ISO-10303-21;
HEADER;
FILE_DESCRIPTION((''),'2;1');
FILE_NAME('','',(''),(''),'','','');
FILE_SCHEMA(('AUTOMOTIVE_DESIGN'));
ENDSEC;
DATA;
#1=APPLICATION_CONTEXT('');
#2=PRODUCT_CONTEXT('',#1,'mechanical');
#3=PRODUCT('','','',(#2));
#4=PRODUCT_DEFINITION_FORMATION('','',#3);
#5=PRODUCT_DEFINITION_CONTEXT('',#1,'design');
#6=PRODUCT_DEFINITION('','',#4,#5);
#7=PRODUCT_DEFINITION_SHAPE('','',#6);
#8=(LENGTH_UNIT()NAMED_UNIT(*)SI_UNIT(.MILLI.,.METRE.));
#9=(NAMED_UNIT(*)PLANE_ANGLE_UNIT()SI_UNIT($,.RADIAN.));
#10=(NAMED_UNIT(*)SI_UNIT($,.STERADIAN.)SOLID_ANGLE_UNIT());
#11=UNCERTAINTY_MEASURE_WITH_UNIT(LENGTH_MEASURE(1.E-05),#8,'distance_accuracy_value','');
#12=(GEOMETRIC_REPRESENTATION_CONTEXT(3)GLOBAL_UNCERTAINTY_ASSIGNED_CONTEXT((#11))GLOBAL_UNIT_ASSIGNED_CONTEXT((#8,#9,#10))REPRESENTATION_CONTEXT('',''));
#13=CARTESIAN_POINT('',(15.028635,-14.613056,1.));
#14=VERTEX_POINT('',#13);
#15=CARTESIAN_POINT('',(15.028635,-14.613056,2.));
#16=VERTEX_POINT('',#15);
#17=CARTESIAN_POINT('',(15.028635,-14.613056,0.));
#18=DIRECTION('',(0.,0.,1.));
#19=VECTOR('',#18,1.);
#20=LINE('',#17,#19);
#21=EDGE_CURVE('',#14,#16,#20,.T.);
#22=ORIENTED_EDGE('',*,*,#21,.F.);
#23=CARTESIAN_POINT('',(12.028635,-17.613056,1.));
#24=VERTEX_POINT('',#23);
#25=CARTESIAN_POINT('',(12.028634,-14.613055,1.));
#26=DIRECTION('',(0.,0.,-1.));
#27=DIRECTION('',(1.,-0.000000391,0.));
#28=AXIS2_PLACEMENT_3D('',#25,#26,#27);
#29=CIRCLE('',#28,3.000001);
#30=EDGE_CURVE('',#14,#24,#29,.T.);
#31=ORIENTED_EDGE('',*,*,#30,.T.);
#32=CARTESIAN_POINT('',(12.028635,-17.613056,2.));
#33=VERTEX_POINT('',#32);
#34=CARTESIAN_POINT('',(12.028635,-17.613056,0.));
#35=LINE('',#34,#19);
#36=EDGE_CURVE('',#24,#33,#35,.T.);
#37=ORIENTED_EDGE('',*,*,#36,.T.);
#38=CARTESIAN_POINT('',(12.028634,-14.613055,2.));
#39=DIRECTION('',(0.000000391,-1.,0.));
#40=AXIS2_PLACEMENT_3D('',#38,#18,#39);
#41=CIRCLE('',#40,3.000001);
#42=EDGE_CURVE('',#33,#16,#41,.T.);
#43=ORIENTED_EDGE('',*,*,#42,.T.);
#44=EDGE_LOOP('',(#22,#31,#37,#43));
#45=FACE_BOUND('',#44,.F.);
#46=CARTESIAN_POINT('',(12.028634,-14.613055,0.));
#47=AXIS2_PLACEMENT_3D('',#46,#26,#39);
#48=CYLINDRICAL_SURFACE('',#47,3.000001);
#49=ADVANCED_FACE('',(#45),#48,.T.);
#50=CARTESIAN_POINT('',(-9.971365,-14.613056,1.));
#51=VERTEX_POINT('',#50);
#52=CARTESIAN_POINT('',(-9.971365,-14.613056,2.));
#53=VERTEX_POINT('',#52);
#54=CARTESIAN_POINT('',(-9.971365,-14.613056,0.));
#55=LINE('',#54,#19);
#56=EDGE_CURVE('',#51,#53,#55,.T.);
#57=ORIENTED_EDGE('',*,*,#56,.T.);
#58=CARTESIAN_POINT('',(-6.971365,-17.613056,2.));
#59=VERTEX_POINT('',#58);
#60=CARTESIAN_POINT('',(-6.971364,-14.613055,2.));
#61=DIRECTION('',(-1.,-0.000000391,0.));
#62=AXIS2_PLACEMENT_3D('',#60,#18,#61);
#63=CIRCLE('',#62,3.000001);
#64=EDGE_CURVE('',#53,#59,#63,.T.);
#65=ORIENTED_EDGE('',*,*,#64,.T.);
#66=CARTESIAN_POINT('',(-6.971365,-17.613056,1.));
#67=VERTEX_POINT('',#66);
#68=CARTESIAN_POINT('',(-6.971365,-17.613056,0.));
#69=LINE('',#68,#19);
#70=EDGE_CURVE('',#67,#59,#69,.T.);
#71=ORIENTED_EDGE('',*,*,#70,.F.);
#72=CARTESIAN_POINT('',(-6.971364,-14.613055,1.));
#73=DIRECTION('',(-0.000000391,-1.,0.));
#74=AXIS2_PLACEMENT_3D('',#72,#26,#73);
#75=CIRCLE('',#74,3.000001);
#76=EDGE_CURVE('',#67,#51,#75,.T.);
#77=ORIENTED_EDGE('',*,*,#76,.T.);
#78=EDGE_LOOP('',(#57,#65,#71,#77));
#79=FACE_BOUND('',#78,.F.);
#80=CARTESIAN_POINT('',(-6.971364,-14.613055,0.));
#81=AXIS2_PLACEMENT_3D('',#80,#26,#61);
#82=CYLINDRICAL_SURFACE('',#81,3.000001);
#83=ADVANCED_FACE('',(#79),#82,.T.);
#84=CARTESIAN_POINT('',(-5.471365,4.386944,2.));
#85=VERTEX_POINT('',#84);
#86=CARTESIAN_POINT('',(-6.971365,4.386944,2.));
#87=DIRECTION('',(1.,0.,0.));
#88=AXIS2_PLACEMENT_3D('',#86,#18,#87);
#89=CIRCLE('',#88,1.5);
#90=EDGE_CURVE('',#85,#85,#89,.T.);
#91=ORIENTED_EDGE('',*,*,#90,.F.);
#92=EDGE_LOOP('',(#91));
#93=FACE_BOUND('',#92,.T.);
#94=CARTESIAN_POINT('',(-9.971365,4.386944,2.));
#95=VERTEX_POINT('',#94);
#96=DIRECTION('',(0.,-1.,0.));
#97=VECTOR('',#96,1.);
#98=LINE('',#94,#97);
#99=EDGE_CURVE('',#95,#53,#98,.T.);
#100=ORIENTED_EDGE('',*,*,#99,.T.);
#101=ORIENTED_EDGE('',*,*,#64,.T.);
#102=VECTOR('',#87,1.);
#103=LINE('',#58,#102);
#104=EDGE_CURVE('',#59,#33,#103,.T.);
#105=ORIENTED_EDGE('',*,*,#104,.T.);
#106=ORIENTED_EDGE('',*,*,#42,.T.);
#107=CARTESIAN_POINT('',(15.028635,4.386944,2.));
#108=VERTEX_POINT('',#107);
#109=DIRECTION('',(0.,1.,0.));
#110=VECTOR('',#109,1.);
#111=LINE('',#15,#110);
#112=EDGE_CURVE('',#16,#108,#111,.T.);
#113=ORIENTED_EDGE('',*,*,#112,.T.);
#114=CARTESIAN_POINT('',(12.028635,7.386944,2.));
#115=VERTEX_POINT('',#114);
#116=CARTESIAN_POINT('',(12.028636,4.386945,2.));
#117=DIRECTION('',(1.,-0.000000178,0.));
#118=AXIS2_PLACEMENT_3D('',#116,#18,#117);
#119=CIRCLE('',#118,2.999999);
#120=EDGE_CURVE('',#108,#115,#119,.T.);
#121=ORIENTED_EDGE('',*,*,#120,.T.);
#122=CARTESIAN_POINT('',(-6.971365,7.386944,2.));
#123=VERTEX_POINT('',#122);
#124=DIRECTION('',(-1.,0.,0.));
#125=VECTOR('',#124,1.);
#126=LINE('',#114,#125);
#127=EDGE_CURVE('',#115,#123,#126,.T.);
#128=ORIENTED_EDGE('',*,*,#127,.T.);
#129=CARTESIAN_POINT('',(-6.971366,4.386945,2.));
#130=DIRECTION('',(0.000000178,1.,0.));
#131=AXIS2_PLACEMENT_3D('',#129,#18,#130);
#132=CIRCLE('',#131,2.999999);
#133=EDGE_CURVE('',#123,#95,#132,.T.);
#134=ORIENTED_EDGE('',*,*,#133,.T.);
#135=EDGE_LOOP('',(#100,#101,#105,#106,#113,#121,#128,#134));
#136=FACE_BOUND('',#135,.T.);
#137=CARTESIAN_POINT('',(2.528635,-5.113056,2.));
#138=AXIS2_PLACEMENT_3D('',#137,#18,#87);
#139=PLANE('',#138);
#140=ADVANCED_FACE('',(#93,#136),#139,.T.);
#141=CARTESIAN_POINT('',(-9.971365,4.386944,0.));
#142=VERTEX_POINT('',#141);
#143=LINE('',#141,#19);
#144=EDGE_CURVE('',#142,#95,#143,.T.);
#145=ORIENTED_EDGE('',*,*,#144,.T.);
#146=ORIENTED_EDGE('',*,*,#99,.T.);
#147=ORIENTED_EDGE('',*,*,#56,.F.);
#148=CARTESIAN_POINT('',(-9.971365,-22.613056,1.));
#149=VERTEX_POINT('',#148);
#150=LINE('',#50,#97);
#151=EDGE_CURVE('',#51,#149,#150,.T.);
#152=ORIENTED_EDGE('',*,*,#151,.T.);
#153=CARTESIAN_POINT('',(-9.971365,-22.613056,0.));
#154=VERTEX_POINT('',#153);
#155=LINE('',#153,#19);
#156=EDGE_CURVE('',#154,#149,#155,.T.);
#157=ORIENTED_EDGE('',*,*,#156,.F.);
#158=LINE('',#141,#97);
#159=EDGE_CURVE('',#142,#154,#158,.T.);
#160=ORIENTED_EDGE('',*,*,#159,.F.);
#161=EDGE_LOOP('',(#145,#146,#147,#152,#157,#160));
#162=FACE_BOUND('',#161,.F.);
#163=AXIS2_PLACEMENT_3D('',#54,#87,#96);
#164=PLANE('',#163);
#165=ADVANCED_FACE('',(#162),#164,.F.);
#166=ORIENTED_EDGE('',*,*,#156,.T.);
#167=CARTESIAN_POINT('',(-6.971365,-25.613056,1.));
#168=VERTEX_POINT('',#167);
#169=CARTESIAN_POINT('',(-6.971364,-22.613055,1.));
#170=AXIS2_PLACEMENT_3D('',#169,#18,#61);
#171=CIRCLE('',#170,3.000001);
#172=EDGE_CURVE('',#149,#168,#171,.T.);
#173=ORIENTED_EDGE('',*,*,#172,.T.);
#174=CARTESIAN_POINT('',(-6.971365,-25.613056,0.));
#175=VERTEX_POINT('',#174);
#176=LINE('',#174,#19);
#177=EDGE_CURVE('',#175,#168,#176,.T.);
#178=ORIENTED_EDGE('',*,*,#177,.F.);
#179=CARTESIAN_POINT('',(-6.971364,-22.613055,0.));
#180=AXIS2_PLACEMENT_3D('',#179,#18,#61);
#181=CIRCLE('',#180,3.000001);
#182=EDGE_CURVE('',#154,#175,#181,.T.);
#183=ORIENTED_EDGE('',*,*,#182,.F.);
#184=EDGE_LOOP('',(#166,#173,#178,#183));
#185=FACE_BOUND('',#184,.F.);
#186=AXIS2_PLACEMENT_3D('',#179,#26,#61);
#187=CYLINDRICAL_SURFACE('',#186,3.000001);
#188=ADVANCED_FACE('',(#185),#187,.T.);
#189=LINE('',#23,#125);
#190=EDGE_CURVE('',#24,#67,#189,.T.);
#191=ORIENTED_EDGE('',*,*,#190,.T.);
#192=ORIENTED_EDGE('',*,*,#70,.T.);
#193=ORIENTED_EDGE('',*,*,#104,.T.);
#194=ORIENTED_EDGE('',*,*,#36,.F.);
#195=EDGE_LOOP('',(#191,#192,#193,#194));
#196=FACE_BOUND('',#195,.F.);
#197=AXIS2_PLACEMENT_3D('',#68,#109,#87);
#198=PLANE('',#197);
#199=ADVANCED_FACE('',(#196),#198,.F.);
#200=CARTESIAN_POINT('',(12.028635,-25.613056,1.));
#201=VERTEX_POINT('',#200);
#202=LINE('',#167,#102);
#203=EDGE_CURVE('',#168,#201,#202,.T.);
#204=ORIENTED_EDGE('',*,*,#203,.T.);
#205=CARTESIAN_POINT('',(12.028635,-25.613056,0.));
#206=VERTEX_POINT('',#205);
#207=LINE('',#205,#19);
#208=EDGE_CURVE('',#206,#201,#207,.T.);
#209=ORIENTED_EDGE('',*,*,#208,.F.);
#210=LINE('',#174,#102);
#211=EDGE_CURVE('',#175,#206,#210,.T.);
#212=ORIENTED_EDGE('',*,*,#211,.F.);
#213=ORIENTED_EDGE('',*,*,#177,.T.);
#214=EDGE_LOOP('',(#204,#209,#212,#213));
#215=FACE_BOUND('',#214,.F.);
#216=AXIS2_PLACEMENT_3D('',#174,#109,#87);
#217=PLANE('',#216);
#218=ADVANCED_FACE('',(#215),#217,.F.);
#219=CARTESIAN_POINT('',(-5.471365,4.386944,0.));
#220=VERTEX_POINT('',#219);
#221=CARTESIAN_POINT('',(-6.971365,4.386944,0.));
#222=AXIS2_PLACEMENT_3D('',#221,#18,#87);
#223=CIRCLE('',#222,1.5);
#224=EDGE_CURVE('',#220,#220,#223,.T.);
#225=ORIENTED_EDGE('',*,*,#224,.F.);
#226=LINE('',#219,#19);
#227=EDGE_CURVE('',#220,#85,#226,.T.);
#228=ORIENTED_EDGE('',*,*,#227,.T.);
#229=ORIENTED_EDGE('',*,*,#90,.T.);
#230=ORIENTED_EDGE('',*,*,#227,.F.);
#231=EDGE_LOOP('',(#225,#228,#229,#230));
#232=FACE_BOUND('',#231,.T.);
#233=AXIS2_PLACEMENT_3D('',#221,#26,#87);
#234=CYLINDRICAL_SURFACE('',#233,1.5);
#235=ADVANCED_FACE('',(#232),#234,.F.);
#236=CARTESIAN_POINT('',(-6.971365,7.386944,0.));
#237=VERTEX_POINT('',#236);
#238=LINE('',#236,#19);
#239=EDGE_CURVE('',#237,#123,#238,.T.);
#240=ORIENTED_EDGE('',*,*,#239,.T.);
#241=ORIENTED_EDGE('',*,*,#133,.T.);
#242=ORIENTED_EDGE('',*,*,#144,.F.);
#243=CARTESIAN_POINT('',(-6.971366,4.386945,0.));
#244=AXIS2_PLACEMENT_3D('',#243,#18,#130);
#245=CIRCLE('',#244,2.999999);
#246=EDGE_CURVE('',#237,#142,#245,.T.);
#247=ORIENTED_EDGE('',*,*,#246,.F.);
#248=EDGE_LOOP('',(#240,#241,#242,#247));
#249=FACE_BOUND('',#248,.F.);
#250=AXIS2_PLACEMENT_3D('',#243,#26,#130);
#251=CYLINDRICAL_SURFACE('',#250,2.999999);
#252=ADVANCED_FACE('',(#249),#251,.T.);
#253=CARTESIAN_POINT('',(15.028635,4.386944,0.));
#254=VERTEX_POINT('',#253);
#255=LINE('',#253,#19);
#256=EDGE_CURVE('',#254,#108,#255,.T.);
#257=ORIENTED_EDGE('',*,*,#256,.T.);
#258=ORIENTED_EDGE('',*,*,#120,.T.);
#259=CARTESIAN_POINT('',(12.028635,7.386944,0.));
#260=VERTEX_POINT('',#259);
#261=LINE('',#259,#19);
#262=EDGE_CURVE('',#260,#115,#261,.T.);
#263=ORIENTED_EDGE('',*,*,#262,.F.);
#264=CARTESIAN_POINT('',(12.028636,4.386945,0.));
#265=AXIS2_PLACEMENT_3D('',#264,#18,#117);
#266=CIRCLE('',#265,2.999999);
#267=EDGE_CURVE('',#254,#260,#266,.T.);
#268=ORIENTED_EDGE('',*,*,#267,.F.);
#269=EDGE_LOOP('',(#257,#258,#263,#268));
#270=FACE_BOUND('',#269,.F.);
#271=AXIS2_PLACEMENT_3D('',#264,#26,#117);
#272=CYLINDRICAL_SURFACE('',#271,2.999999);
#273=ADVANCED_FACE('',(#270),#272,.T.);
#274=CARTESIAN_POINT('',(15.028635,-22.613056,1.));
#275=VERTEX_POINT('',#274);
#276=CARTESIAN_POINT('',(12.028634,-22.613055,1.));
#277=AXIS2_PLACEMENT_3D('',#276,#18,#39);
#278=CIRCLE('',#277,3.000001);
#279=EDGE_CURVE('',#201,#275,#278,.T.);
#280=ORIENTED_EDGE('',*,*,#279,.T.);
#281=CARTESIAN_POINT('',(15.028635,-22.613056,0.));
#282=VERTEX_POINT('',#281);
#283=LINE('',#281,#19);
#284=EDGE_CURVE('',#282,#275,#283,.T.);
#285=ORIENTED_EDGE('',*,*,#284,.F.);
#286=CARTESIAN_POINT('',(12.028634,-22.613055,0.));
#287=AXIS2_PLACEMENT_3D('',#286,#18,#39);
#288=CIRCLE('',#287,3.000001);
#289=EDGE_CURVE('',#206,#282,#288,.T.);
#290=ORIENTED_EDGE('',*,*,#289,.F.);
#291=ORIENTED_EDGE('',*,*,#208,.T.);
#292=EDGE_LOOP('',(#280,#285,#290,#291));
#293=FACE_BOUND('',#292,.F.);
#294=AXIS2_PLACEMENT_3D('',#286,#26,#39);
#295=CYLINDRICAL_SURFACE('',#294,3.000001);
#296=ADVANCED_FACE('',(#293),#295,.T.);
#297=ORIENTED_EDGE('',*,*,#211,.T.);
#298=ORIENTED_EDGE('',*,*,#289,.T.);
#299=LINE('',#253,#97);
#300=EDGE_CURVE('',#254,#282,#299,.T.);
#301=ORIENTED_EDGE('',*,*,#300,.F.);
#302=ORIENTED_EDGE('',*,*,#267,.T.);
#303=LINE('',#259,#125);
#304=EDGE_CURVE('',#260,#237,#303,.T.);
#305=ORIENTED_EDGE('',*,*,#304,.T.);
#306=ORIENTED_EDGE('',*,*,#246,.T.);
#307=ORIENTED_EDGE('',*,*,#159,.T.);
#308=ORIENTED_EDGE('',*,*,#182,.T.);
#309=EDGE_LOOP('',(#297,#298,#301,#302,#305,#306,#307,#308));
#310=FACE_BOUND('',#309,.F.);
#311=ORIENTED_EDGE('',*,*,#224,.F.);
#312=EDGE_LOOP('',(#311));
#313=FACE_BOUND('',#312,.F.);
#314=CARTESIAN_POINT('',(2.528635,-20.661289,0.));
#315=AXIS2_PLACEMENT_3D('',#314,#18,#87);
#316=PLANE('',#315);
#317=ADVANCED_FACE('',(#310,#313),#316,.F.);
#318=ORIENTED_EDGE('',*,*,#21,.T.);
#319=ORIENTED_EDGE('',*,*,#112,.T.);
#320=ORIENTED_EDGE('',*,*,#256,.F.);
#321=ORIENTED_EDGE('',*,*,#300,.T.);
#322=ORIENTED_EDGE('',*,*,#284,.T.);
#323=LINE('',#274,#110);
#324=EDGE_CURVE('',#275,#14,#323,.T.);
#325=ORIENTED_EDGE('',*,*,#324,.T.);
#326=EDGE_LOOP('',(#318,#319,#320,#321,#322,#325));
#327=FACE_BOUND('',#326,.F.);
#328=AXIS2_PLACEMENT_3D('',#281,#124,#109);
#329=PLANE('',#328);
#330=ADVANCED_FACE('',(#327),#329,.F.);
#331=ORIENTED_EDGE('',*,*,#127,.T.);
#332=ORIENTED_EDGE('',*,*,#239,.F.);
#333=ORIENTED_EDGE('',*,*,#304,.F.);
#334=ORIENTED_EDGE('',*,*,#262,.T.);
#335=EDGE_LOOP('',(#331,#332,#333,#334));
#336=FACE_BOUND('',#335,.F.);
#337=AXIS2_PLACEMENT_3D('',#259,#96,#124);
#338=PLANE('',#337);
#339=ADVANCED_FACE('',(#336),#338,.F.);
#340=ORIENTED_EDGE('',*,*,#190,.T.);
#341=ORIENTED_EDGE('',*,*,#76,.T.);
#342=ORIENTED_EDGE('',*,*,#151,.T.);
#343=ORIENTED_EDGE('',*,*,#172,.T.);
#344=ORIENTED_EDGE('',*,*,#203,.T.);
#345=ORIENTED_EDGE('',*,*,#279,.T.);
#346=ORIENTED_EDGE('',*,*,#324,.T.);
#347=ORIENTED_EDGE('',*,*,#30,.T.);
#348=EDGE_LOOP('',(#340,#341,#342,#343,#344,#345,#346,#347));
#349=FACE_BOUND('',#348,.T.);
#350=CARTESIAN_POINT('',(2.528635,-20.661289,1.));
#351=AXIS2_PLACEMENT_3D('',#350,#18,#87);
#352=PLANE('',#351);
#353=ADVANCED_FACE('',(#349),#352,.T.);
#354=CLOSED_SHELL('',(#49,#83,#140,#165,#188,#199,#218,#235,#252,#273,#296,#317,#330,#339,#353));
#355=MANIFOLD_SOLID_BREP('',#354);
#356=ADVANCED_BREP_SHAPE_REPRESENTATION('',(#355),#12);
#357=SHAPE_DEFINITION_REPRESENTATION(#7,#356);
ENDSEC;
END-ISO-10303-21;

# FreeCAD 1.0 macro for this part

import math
import FreeCAD as App
import Part
import Sketcher
from FreeCAD import Vector
Q = App.Units.Quantity

doc = App.newDocument("Part")
body = doc.addObject("PartDesign::Body", "Body")

sketch1 = doc.addObject("Sketcher::SketchObject", "Sketch")
body.addObject(sketch1)
sketch1.AttachmentSupport = (doc.XY_Plane, [""])
sketch1.MapMode = "FlatFace"
sketch1.addGeometry([
    Part.LineSegment(Vector(12, 7.4, 0), Vector(-7, 7.4, 0)),
    Part.ArcOfCircle(Part.Circle(Vector(-7, 4.4, 0), Vector(0, 0, 1), 3), math.radians(90), math.radians(180)),
    Part.LineSegment(Vector(-10, 4.4, 0), Vector(-10, -14.6, 0)),
    Part.ArcOfCircle(Part.Circle(Vector(-7, -14.6, 0), Vector(0, 0, 1), 3), math.radians(-180), math.radians(-90)),
    Part.LineSegment(Vector(-7, -17.6, 0), Vector(12, -17.6, 0)),
    Part.ArcOfCircle(Part.Circle(Vector(12, -14.6, 0), Vector(0, 0, 1), 3), math.radians(-90), math.radians(0)),
    Part.LineSegment(Vector(15, -14.6, 0), Vector(15, 4.4, 0)),
    Part.ArcOfCircle(Part.Circle(Vector(12, 4.4, 0), Vector(0, 0, 1), 3), math.radians(0), math.radians(90)),
    Part.Circle(Vector(-7, 4.4, 0), Vector(0, 0, 1), 1.5),
], False)
sketch1.addConstraint([
    Sketcher.Constraint("Tangent", 0, 2, 1, 1),
    Sketcher.Constraint("Tangent", 1, 2, 2, 1),
    Sketcher.Constraint("Tangent", 2, 2, 3, 1),
    Sketcher.Constraint("Tangent", 3, 2, 4, 1),
    Sketcher.Constraint("Tangent", 4, 2, 5, 1),
    Sketcher.Constraint("Tangent", 5, 2, 6, 1),
    Sketcher.Constraint("Tangent", 6, 2, 7, 1),
    Sketcher.Constraint("Tangent", 7, 2, 0, 1),
    Sketcher.Constraint("Horizontal", 0),
    Sketcher.Constraint("Vertical", 2),
    Sketcher.Constraint("Horizontal", 4),
    Sketcher.Constraint("Vertical", 6),
    Sketcher.Constraint("Coincident", 8, 3, 1, 3),
    Sketcher.Constraint("Equal", 1, 3),
    Sketcher.Constraint("Equal", 3, 5),
    Sketcher.Constraint("Equal", 5, 7),
    Sketcher.Constraint("Equal", 4, 2),
    Sketcher.Constraint("Diameter", 8, Q("3 mm")),
    Sketcher.Constraint("Radius", 1, Q("2.999999 mm")),
    Sketcher.Constraint("DistanceX", 0, 2, 0, 1, Q("19 mm")),
    Sketcher.Constraint("DistanceX", 1, 3, -1, 1, Q("6.971366 mm")),
    Sketcher.Constraint("DistanceY", -1, 1, 1, 3, Q("4.386945 mm")),
])
pad1 = doc.addObject("PartDesign::Pad", "Pad")
body.addObject(pad1)
pad1.Profile = sketch1
pad1.Length = 2

sketch2 = doc.addObject("Sketcher::SketchObject", "Sketch001")
body.addObject(sketch2)
sketch2.AttachmentSupport = (doc.XY_Plane, [""])
sketch2.MapMode = "FlatFace"
sketch2.addGeometry([
    Part.ArcOfCircle(Part.Circle(Vector(-7, -14.6, 0), Vector(0, 0, 1), 3), math.radians(-180), math.radians(-90)),
    Part.LineSegment(Vector(-10, -14.6, 0), Vector(-10, -22.6, 0)),
    Part.ArcOfCircle(Part.Circle(Vector(-7, -22.6, 0), Vector(0, 0, 1), 3), math.radians(-180), math.radians(-90)),
    Part.LineSegment(Vector(-7, -25.6, 0), Vector(12, -25.6, 0)),
    Part.ArcOfCircle(Part.Circle(Vector(12, -22.6, 0), Vector(0, 0, 1), 3), math.radians(-90), math.radians(0)),
    Part.LineSegment(Vector(15, -22.6, 0), Vector(15, -14.6, 0)),
    Part.ArcOfCircle(Part.Circle(Vector(12, -14.6, 0), Vector(0, 0, 1), 3), math.radians(-90), math.radians(0)),
    Part.LineSegment(Vector(12, -17.6, 0), Vector(-7, -17.6, 0)),
], False)
sketch2.addConstraint([
    Sketcher.Constraint("Tangent", 0, 1, 1, 1),
    Sketcher.Constraint("Tangent", 1, 2, 2, 1),
    Sketcher.Constraint("Tangent", 2, 2, 3, 1),
    Sketcher.Constraint("Tangent", 3, 2, 4, 1),
    Sketcher.Constraint("Tangent", 4, 2, 5, 1),
    Sketcher.Constraint("Tangent", 5, 2, 6, 2),
    Sketcher.Constraint("Tangent", 6, 1, 7, 1),
    Sketcher.Constraint("Tangent", 7, 2, 0, 2),
    Sketcher.Constraint("Vertical", 1),
    Sketcher.Constraint("Horizontal", 3),
    Sketcher.Constraint("Vertical", 5),
    Sketcher.Constraint("Horizontal", 7),
    Sketcher.Constraint("Equal", 0, 2),
    Sketcher.Constraint("Equal", 2, 4),
    Sketcher.Constraint("Equal", 4, 6),
    Sketcher.Constraint("Radius", 0, Q("3.000001 mm")),
    Sketcher.Constraint("DistanceX", 3, 1, 3, 2, Q("19 mm")),
    Sketcher.Constraint("DistanceY", 1, 2, 1, 1, Q("8 mm")),
    Sketcher.Constraint("DistanceX", 0, 3, -1, 1, Q("6.971364 mm")),
    Sketcher.Constraint("DistanceY", 0, 3, -1, 1, Q("14.613055 mm")),
])
pad2 = doc.addObject("PartDesign::Pad", "Pad001")
body.addObject(pad2)
pad2.Profile = sketch2
pad2.Length = 1

doc.recompute()
